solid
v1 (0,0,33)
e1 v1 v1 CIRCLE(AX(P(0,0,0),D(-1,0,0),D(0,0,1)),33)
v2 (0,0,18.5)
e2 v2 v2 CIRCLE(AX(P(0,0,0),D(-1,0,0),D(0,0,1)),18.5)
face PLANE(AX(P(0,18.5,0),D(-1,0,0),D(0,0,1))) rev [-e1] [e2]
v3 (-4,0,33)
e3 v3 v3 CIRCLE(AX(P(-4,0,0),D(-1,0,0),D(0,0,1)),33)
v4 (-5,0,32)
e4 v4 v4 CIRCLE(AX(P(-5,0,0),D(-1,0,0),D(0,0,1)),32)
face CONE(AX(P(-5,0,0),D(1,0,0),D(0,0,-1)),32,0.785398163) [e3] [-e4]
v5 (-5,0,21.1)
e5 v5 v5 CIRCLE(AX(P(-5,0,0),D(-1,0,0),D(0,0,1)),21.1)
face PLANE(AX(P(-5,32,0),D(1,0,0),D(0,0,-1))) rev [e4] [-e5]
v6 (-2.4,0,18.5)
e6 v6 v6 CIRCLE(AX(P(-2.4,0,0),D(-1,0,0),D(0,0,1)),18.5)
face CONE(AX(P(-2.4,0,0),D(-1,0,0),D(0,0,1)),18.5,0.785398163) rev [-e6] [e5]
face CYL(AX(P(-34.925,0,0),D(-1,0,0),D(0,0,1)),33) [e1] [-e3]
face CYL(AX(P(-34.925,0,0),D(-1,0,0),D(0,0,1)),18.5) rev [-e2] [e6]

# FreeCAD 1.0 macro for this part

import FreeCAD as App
import Part
import Sketcher

V = App.Vector
Q = App.Units.Quantity


def add_polygon(sketch, points):
    """Adds a closed chain of lines whose ends are joined by coincident constraints."""
    first, n = sketch.GeometryCount, len(points)
    for a, b in zip(points, points[1:] + points[:1]):
        sketch.addGeometry(Part.LineSegment(App.Vector(*a, 0), App.Vector(*b, 0)), False)
    for i in range(n):
        sketch.addConstraint(Sketcher.Constraint("Coincident", first + i, 2, first + (i + 1) % n, 1))

doc = App.newDocument("Part")
body = doc.addObject("PartDesign::Body", "Body")

# Sketch on XY plane
sketch1 = body.newObject("Sketcher::SketchObject", "Sketch")
sketch1.AttachmentSupport = (doc.getObject("XY_Plane"), [""])
sketch1.MapMode = "FlatFace"
add_polygon(sketch1, [(0, 18.5), (0, 33), (-4, 33), (-5, 32), (-5, 21.1), (-2.4, 18.5)])  # lines 0-5
sketch1.addConstraint(Sketcher.Constraint("Vertical", 0))
sketch1.addConstraint(Sketcher.Constraint("Horizontal", 1))
sketch1.addConstraint(Sketcher.Constraint("Vertical", 3))
sketch1.addConstraint(Sketcher.Constraint("Horizontal", 5))
sketch1.addConstraint(Sketcher.Constraint("PointOnObject", 0, 2, -2))
sketch1.addConstraint(Sketcher.Constraint("Perpendicular", 2, 4))
sketch1.addConstraint(Sketcher.Constraint("DistanceX", 1, 2, 1, 1, Q("4 mm")))
sketch1.addConstraint(Sketcher.Constraint("Angle", 2, Q("-135 deg")))
sketch1.addConstraint(Sketcher.Constraint("DistanceX", 5, 1, 5, 2, Q("2.4 mm")))
sketch1.addConstraint(Sketcher.Constraint("DistanceY", 0, 1, 0, 2, Q("14.5 mm")))
sketch1.addConstraint(Sketcher.Constraint("DistanceY", 3, 2, 3, 1, Q("10.9 mm")))
sketch1.addConstraint(Sketcher.Constraint("DistanceY", -1, 1, 0, 2, Q("33 mm")))
revolution = body.newObject("PartDesign::Revolution", "Revolution")
revolution.Profile = sketch1
revolution.ReferenceAxis = (sketch1, ["H_Axis"])
revolution.Angle = 360

doc.recompute()
